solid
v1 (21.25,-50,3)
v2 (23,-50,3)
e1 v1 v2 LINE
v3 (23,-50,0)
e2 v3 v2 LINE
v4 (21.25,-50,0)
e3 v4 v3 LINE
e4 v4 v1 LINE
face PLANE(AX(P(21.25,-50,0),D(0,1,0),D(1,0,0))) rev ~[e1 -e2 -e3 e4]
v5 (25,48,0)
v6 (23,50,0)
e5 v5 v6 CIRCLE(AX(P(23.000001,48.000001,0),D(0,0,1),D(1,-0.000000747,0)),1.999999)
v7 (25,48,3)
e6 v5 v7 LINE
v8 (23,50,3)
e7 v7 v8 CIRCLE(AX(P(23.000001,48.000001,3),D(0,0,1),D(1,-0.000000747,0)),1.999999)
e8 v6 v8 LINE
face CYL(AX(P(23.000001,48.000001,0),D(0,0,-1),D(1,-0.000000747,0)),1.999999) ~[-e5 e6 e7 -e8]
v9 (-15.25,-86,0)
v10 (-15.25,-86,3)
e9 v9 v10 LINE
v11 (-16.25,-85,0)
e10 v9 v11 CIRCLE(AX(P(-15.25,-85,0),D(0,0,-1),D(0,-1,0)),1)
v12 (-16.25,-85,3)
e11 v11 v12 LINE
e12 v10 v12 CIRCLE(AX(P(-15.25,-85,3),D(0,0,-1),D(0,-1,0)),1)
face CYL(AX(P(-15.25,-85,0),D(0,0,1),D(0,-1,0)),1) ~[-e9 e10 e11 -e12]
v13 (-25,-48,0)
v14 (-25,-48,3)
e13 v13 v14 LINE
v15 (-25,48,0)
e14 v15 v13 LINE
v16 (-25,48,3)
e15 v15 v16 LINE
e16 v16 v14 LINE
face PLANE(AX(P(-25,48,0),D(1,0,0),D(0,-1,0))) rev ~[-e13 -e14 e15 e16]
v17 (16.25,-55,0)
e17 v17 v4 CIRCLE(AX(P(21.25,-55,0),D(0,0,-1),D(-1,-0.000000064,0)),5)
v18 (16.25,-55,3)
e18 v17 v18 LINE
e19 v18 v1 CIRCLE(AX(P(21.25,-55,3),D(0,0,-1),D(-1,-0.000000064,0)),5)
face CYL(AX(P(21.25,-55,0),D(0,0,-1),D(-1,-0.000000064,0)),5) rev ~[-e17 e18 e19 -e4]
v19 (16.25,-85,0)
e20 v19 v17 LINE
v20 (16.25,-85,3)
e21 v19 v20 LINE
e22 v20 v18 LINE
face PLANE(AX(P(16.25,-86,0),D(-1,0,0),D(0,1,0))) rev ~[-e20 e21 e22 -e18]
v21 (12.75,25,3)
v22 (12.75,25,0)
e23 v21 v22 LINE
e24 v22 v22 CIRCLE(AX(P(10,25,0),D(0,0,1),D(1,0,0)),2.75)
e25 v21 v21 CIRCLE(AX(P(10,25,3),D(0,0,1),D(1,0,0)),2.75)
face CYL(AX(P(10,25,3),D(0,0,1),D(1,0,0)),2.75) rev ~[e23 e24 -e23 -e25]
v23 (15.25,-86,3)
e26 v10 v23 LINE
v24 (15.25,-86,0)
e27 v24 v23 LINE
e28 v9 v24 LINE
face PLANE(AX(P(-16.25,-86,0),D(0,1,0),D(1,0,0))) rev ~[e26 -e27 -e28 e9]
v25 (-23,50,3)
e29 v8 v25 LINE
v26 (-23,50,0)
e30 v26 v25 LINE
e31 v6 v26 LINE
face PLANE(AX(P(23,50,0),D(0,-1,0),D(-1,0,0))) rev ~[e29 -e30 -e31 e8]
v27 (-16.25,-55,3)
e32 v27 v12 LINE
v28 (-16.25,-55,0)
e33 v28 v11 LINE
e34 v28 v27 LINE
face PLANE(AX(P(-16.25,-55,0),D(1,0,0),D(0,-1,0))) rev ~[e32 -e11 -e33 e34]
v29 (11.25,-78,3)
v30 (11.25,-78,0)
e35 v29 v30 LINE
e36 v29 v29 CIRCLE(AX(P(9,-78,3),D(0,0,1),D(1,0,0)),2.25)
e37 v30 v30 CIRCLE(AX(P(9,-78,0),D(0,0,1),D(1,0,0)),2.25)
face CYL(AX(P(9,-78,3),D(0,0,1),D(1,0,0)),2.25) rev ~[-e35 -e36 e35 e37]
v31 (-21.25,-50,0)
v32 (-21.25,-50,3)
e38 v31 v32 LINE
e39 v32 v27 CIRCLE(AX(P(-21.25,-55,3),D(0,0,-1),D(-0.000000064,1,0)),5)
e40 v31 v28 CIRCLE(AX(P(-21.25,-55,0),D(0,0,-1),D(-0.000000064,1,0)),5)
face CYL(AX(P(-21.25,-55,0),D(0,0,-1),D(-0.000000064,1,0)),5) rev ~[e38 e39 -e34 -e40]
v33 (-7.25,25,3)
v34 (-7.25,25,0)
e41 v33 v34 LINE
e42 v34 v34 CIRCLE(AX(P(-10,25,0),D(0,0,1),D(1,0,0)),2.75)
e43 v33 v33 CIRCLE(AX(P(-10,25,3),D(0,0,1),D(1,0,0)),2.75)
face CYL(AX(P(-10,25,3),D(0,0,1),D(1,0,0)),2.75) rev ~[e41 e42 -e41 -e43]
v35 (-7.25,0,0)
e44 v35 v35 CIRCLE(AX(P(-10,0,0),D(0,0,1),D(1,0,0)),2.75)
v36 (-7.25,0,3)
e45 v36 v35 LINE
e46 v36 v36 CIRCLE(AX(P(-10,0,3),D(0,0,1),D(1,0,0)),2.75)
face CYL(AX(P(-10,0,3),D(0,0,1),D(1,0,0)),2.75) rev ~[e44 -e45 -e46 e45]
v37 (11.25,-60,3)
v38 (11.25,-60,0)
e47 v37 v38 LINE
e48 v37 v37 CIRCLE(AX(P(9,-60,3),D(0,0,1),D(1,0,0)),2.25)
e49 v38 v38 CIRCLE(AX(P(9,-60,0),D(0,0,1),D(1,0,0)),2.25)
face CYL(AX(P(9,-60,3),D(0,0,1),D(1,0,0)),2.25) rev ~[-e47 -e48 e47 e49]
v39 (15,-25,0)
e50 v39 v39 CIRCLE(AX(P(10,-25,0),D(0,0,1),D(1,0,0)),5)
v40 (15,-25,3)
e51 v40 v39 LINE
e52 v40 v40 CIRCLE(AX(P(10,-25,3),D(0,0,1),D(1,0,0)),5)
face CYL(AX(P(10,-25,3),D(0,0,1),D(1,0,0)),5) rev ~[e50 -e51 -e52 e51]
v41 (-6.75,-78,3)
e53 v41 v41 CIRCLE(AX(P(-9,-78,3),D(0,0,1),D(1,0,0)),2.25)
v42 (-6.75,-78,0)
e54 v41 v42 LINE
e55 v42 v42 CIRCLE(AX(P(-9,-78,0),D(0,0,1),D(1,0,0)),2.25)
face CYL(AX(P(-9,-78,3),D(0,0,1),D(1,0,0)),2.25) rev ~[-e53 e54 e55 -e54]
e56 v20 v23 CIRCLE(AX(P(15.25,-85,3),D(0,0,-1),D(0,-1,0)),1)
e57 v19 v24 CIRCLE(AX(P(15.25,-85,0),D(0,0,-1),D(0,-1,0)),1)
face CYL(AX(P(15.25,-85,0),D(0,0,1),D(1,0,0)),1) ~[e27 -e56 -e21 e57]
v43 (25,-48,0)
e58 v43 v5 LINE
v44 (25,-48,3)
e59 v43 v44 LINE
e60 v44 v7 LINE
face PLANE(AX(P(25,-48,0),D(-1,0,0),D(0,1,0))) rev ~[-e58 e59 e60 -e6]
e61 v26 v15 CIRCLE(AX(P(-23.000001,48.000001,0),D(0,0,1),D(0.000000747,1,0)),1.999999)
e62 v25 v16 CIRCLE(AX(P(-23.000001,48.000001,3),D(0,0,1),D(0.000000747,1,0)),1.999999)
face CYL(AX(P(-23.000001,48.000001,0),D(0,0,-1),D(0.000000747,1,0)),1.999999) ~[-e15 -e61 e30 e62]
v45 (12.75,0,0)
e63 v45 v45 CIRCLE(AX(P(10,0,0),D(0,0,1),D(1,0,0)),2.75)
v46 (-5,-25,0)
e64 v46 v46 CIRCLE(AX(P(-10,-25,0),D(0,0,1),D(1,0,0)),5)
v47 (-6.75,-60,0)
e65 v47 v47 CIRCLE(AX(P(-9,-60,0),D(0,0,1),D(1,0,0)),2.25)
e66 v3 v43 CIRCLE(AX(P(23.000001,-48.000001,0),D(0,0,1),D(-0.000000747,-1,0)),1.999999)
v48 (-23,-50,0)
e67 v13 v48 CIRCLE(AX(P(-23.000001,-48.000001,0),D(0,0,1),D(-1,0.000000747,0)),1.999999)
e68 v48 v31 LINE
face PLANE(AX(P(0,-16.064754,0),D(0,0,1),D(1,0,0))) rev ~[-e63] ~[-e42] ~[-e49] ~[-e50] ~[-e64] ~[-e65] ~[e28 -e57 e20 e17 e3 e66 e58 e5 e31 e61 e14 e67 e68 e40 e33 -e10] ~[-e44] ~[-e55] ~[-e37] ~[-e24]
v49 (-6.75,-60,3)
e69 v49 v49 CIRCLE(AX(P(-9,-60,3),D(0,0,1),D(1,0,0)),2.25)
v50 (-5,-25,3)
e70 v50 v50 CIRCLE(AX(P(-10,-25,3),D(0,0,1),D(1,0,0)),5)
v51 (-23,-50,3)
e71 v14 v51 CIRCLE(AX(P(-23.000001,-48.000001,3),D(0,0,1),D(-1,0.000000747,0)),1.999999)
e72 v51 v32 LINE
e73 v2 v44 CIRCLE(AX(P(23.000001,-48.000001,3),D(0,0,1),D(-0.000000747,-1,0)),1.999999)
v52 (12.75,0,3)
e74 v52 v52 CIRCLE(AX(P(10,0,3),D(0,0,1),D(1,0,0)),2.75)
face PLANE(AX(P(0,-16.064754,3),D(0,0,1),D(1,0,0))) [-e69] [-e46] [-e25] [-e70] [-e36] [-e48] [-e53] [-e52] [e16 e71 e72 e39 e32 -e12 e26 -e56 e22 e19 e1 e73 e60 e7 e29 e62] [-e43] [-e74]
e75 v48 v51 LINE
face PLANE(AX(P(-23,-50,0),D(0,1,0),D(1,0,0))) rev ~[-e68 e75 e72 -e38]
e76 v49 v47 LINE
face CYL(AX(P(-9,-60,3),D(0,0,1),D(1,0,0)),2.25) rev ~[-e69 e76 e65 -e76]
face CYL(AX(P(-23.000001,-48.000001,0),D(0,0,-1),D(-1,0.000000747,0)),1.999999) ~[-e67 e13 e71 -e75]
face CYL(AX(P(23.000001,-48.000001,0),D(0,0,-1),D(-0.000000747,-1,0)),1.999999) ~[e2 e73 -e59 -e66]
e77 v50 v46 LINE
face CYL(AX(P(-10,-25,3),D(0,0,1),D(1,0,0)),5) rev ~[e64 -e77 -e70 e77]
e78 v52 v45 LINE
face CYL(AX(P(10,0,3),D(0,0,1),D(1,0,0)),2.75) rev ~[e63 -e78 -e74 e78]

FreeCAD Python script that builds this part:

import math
import FreeCAD as App
import Part
import Sketcher
Q = App.Units.Quantity


def edges_at(feature, points):
    """Names of the edges that pass closest to the given points."""
    edges = feature.Shape.Edges
    near = lambda p: min(range(len(edges)), key=lambda i: edges[i].distToShape(Part.Vertex(*p))[0])
    return sorted({f"Edge{near(p) + 1}" for p in points})

doc = App.newDocument("Part")
body = doc.addObject("PartDesign::Body", "Body")

# Sketch on XY plane
sketch1 = body.newObject("Sketcher::SketchObject", "Sketch")
sketch1.AttachmentSupport = (doc.getObject("XY_Plane"), [""])
sketch1.MapMode = "FlatFace"
sketch1.addGeometry([
    Part.ArcOfCircle(Part.Circle(App.Vector(23.000001, 48.000001, 0), App.Vector(0, 0, 1), 1.999999), math.radians(-0.000043), math.radians(90.000043)),  # 0
    Part.LineSegment(App.Vector(23, 50, 0), App.Vector(-23, 50, 0)),  # 1
    Part.ArcOfCircle(Part.Circle(App.Vector(-23.000001, 48.000001, 0), App.Vector(0, 0, 1), 1.999999), math.radians(89.999957), math.radians(180.000043)),  # 2
    Part.LineSegment(App.Vector(-25, 48, 0), App.Vector(-25, -48, 0)),  # 3
    Part.ArcOfCircle(Part.Circle(App.Vector(-23.000001, -48.000001, 0), App.Vector(0, 0, 1), 1.999999), math.radians(179.999957), math.radians(270.000043)),  # 4
    Part.LineSegment(App.Vector(-23, -50, 0), App.Vector(-21.25, -50, 0)),  # 5
    Part.ArcOfCircle(Part.Circle(App.Vector(-21.25, -55, 0), App.Vector(0, 0, 1), 5), math.radians(-0.000004), math.radians(90.000004)),  # 6
    Part.LineSegment(App.Vector(-16.25, -55, 0), App.Vector(-16.25, -86, 0)),  # 7
    Part.LineSegment(App.Vector(-16.25, -86, 0), App.Vector(16.25, -86, 0)),  # 8
    Part.LineSegment(App.Vector(16.25, -86, 0), App.Vector(16.25, -55, 0)),  # 9
    Part.ArcOfCircle(Part.Circle(App.Vector(21.25, -55, 0), App.Vector(0, 0, 1), 5), math.radians(89.999996), math.radians(180.000004)),  # 10
    Part.LineSegment(App.Vector(21.25, -50, 0), App.Vector(23, -50, 0)),  # 11
    Part.ArcOfCircle(Part.Circle(App.Vector(23.000001, -48.000001, 0), App.Vector(0, 0, 1), 1.999999), math.radians(-90.000043), math.radians(0.000043)),  # 12
    Part.LineSegment(App.Vector(25, -48, 0), App.Vector(25, 48, 0)),  # 13
], False)
sketch1.addConstraint([
    Sketcher.Constraint("Tangent", 0, 2, 1, 1),
    Sketcher.Constraint("Tangent", 1, 2, 2, 1),
    Sketcher.Constraint("Tangent", 2, 2, 3, 1),
    Sketcher.Constraint("Tangent", 3, 2, 4, 1),
    Sketcher.Constraint("Tangent", 4, 2, 5, 1),
    Sketcher.Constraint("Tangent", 5, 2, 6, 2),
    Sketcher.Constraint("Tangent", 6, 1, 7, 1),
    Sketcher.Constraint("Coincident", 7, 2, 8, 1),
    Sketcher.Constraint("Coincident", 8, 2, 9, 1),
    Sketcher.Constraint("Tangent", 9, 2, 10, 2),
    Sketcher.Constraint("Tangent", 10, 1, 11, 1),
    Sketcher.Constraint("Tangent", 11, 2, 12, 1),
    Sketcher.Constraint("Tangent", 12, 2, 13, 1),
    Sketcher.Constraint("Tangent", 13, 2, 0, 1),
    Sketcher.Constraint("Horizontal", 1),
    Sketcher.Constraint("Vertical", 3),
    Sketcher.Constraint("Horizontal", 5),
    Sketcher.Constraint("Vertical", 7),
    Sketcher.Constraint("Horizontal", 8),
    Sketcher.Constraint("Vertical", 9),
    Sketcher.Constraint("Horizontal", 11),
    Sketcher.Constraint("Vertical", 13),
    Sketcher.Constraint("Equal", 0, 2),
    Sketcher.Constraint("Equal", 2, 4),
    Sketcher.Constraint("Equal", 6, 10),
    Sketcher.Constraint("Equal", 4, 12),
    Sketcher.Constraint("Symmetric", 0, 3, 4, 3, -1, 1),
    Sketcher.Constraint("Symmetric", 6, 3, 10, 3, -2),
    Sketcher.Constraint("Radius", 0, Q("1.999999 mm")),
    Sketcher.Constraint("Radius", 6, Q("5 mm")),
    Sketcher.Constraint("DistanceX", 1, 2, 1, 1, Q("46 mm")),
    Sketcher.Constraint("DistanceY", 3, 2, 3, 1, Q("96 mm")),
    Sketcher.Constraint("DistanceY", 7, 2, 7, 1, Q("31 mm")),
    Sketcher.Constraint("DistanceX", 8, 1, 8, 2, Q("32.5 mm")),
])
pad1 = body.newObject("PartDesign::Pad", "Pad")
pad1.Profile = sketch1
pad1.Length = 3

# Sketch on XY plane
sketch2 = body.newObject("Sketcher::SketchObject", "Sketch001")
sketch2.AttachmentSupport = (doc.getObject("XY_Plane"), [""])
sketch2.MapMode = "FlatFace"
sketch2.AttachmentOffset = App.Placement(App.Vector(0, 0, 3), App.Rotation())
sketch2.addGeometry([
    Part.Circle(App.Vector(-10, -25, 0), App.Vector(0, 0, 1), 5),  # 0
    Part.Circle(App.Vector(-10, 0, 0), App.Vector(0, 0, 1), 2.75),  # 1
    Part.Circle(App.Vector(-10, 25, 0), App.Vector(0, 0, 1), 2.75),  # 2
    Part.Circle(App.Vector(10, 25, 0), App.Vector(0, 0, 1), 2.75),  # 3
    Part.Circle(App.Vector(10, 0, 0), App.Vector(0, 0, 1), 2.75),  # 4
    Part.Circle(App.Vector(10, -25, 0), App.Vector(0, 0, 1), 5),  # 5
], False)
sketch2.addConstraint([
    Sketcher.Constraint("Equal", 1, 2),
    Sketcher.Constraint("Equal", 2, 3),
    Sketcher.Constraint("Equal", 3, 4),
    Sketcher.Constraint("Equal", 0, 5),
    Sketcher.Constraint("Symmetric", 0, 3, 3, 3, -1, 1),
    Sketcher.Constraint("Symmetric", 1, 3, 4, 3, -1, 1),
    Sketcher.Constraint("Symmetric", 2, 3, 5, 3, -1, 1),
    Sketcher.Constraint("Symmetric", 2, 3, 3, 3, -2),
    Sketcher.Constraint("PointOnObject", 1, 3, -1),
    Sketcher.Constraint("Vertical", 0, 3, 1, 3),
    Sketcher.Constraint("Diameter", 0, Q("10 mm")),
    Sketcher.Constraint("Diameter", 1, Q("5.5 mm")),
    Sketcher.Constraint("DistanceX", 0, 3, -1, 1, Q("10 mm")),
    Sketcher.Constraint("DistanceY", 0, 3, -1, 1, Q("25 mm")),
])
pocket1 = body.newObject("PartDesign::Pocket", "Pocket")
pocket1.Profile = sketch2
pocket1.Type = "ThroughAll"

# Sketch on XY plane
sketch3 = body.newObject("Sketcher::SketchObject", "Sketch002")
sketch3.AttachmentSupport = (doc.getObject("XY_Plane"), [""])
sketch3.MapMode = "FlatFace"
sketch3.AttachmentOffset = App.Placement(App.Vector(0, 0, 3), App.Rotation())
sketch3.addGeometry([
    Part.Circle(App.Vector(-9, -60, 0), App.Vector(0, 0, 1), 2.25),
    Part.Circle(App.Vector(9, -60, 0), App.Vector(0, 0, 1), 2.25),
    Part.Circle(App.Vector(9, -78, 0), App.Vector(0, 0, 1), 2.25),
    Part.Circle(App.Vector(-9, -78, 0), App.Vector(0, 0, 1), 2.25),
], False)
sketch3.addConstraint([
    Sketcher.Constraint("Equal", 0, 1),
    Sketcher.Constraint("Equal", 1, 2),
    Sketcher.Constraint("Equal", 2, 3),
    Sketcher.Constraint("Symmetric", 0, 3, 1, 3, -2),
    Sketcher.Constraint("Symmetric", 2, 3, 3, 3, -2),
    Sketcher.Constraint("Vertical", 1, 3, 2, 3),
    Sketcher.Constraint("Diameter", 0, Q("4.5 mm")),
    Sketcher.Constraint("DistanceX", 0, 3, -1, 1, Q("9 mm")),
    Sketcher.Constraint("DistanceY", 0, 3, -1, 1, Q("60 mm")),
    Sketcher.Constraint("DistanceY", 2, 3, -1, 1, Q("78 mm")),
])
pocket2 = body.newObject("PartDesign::Pocket", "Pocket001")
pocket2.Profile = sketch3
pocket2.Type = "ThroughAll"
doc.recompute()

fillet = body.newObject("PartDesign::Fillet", "Fillet")
fillet.Base = (pocket2, edges_at(pocket2, [(-16.25, -86, 1.5), (16.25, -86, 1.5)]))
fillet.Radius = 1

doc.recompute()
